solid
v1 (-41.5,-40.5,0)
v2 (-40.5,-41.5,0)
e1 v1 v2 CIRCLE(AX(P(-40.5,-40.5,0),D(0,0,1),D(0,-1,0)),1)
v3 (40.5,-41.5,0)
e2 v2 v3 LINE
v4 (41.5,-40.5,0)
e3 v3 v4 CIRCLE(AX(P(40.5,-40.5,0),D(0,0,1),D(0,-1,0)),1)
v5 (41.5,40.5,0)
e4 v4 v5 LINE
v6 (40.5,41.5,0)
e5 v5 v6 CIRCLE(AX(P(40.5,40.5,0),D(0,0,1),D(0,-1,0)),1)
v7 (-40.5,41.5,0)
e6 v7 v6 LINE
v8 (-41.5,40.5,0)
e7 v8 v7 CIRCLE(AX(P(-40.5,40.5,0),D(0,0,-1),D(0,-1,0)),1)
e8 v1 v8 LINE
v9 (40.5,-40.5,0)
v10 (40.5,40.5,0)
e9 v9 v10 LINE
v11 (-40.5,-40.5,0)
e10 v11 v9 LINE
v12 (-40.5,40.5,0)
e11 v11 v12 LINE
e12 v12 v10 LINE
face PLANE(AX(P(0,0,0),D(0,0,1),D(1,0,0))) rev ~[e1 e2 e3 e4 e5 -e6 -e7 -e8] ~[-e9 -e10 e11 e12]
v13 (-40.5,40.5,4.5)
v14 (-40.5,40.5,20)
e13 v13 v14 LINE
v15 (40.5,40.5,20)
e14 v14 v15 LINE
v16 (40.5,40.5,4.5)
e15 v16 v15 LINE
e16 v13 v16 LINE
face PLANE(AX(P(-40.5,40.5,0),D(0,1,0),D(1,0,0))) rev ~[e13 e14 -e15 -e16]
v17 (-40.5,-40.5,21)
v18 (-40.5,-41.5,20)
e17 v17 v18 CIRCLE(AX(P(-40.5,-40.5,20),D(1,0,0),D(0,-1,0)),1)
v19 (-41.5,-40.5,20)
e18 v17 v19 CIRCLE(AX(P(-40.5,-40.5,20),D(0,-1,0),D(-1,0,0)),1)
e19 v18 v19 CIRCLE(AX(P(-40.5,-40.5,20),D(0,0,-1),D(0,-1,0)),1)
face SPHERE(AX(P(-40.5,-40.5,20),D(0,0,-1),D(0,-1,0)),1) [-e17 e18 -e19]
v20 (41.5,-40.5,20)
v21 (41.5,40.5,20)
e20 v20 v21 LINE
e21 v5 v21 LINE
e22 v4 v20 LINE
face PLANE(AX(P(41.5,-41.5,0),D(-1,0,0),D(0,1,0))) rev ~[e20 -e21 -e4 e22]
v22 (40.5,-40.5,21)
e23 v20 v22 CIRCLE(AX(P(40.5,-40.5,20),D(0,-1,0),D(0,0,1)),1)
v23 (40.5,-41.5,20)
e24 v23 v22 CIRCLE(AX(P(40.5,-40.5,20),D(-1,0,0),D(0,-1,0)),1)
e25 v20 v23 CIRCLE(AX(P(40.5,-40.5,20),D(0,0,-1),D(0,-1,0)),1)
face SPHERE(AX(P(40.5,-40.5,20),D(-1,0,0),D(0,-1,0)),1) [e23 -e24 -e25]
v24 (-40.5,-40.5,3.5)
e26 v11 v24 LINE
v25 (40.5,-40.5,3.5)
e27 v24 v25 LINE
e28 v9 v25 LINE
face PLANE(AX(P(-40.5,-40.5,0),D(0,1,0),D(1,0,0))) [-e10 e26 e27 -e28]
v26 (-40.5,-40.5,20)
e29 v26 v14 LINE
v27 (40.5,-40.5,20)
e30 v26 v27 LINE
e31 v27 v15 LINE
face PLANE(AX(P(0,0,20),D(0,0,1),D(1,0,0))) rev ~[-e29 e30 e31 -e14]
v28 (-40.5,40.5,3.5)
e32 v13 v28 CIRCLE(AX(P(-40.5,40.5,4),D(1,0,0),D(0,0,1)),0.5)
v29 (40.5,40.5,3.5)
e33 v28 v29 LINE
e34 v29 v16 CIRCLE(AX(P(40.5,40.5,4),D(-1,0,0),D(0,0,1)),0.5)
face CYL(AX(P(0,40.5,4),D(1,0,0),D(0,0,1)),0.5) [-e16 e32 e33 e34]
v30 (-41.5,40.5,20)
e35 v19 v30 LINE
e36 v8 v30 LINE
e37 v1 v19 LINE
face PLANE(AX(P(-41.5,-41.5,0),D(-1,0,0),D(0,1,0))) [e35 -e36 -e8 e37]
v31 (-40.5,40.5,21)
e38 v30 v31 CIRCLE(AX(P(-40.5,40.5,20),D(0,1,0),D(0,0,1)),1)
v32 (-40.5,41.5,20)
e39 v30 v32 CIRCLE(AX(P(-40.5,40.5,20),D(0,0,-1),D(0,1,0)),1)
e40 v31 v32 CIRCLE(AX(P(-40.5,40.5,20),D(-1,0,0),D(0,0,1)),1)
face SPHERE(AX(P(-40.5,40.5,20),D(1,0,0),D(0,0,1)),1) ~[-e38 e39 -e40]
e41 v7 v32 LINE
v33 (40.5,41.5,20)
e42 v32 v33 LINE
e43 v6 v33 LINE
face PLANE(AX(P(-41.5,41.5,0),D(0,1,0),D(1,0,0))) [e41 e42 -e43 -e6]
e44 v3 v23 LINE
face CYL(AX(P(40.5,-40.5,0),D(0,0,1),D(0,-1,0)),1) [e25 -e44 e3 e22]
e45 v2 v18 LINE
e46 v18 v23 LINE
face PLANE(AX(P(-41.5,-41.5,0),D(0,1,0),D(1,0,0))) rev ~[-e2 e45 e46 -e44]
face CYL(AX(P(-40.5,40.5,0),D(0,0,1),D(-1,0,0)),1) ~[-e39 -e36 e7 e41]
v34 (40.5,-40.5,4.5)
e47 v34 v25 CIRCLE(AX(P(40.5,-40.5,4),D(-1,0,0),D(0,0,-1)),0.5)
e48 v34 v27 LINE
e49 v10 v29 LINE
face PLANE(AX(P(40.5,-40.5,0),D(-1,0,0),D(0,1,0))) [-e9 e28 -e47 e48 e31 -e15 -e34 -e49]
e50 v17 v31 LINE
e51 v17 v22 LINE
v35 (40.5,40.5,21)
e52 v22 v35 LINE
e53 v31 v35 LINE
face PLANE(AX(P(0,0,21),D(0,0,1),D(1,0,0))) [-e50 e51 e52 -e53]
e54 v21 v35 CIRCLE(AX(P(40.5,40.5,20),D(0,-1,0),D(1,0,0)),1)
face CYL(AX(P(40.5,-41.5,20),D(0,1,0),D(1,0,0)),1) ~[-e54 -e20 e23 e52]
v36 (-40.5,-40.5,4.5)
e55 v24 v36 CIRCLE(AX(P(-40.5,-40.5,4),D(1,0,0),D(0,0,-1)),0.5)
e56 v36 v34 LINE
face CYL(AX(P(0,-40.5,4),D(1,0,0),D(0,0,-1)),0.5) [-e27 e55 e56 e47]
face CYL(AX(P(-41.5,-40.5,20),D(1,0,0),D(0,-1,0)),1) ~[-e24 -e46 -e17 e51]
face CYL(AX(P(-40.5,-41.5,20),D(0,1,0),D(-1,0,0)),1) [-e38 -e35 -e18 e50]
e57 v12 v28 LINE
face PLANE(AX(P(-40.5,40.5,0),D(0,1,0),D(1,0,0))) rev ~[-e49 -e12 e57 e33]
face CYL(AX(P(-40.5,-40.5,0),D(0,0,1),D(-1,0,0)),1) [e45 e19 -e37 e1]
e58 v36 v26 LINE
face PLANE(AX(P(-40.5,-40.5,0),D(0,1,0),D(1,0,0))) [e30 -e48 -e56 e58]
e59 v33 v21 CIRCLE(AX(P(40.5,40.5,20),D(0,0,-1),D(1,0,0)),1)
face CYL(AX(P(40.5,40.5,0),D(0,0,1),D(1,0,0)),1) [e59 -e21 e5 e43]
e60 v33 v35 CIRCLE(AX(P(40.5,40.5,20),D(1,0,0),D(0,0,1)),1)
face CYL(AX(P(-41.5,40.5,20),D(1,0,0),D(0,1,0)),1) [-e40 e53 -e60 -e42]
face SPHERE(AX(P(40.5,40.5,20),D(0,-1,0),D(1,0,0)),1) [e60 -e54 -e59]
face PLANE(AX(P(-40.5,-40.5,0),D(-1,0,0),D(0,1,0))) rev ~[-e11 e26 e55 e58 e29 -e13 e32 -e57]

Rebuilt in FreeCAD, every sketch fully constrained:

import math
import FreeCAD as App
import Part
import Sketcher
from FreeCAD import Vector
Q = App.Units.Quantity


def edges_at(feature, points):
    """Names of the edges that pass closest to the given points."""
    edges = feature.Shape.Edges
    near = lambda p: min(range(len(edges)), key=lambda i: edges[i].distToShape(Part.Vertex(*p))[0])
    return sorted({f"Edge{near(p) + 1}" for p in points})

doc = App.newDocument("Part")
body = doc.addObject("PartDesign::Body", "Body")

sketch1 = body.newObject("Sketcher::SketchObject", "Sketch")
sketch1.AttachmentSupport = (doc.getObject("XY_Plane"), [""])
sketch1.MapMode = "FlatFace"
sketch1.addGeometry([
    Part.LineSegment(Vector(-40, 40, 0), Vector(-40, -40, 0)),
    Part.LineSegment(Vector(-40, -40, 0), Vector(40, -40, 0)),
    Part.LineSegment(Vector(40, -40, 0), Vector(40, 40, 0)),
    Part.LineSegment(Vector(40, 40, 0), Vector(-40, 40, 0)),
], False)
sketch1.addConstraint([
    Sketcher.Constraint("Coincident", 0, 2, 1, 1),
    Sketcher.Constraint("Coincident", 1, 2, 2, 1),
    Sketcher.Constraint("Coincident", 2, 2, 3, 1),
    Sketcher.Constraint("Coincident", 3, 2, 0, 1),
    Sketcher.Constraint("Vertical", 0),
    Sketcher.Constraint("Horizontal", 1),
    Sketcher.Constraint("Vertical", 2),
    Sketcher.Constraint("Horizontal", 3),
    Sketcher.Constraint("Symmetric", 0, 2, 2, 2, -1, 1),
    Sketcher.Constraint("Equal", 3, 0),
    Sketcher.Constraint("DistanceX", 1, 1, 1, 2, Q("81 mm")),
])
pad1 = body.newObject("PartDesign::Pad", "Pad")
pad1.Profile = sketch1
pad1.Length = 20

sketch2 = body.newObject("Sketcher::SketchObject", "Sketch001")
sketch2.AttachmentSupport = (doc.getObject("YZ_Plane"), [""])
sketch2.MapMode = "FlatFace"
sketch2.addGeometry([
    Part.ArcOfCircle(Part.Circle(Vector(40.5, 4, 0), Vector(0, 0, 1), 0.5), math.radians(90), math.radians(270)),
    Part.LineSegment(Vector(40.5, 3.5, 0), Vector(40.5, 4.5, 0)),
    Part.ArcOfCircle(Part.Circle(Vector(-40.5, 4, 0), Vector(0, 0, 1), 0.5), math.radians(-90), math.radians(90)),
    Part.LineSegment(Vector(-40.5, 4.5, 0), Vector(-40.5, 3.5, 0)),
], False)
sketch2.addConstraint([
    Sketcher.Constraint("Coincident", 0, 1, 1, 2),
    Sketcher.Constraint("Coincident", 1, 1, 0, 2),
    Sketcher.Constraint("Coincident", 2, 1, 3, 2),
    Sketcher.Constraint("Coincident", 3, 1, 2, 2),
    Sketcher.Constraint("Vertical", 1),
    Sketcher.Constraint("Vertical", 3),
    Sketcher.Constraint("Equal", 0, 2),
    Sketcher.Constraint("Symmetric", 0, 3, 2, 3, -2),
    Sketcher.Constraint("Radius", 0, Q("0.5 mm")),
    Sketcher.Constraint("DistanceY", -1, 1, 0, 3, Q("4 mm")),
    Sketcher.Constraint("DistanceX", 2, 3, 0, 3, Q("81 mm")),
    Sketcher.Constraint("DistanceX", 2, 3, 0, 1, Q("81 mm")),
    Sketcher.Constraint("DistanceX", 2, 1, 1, 1, Q("81 mm")),
])
pocket1 = body.newObject("PartDesign::Pocket", "Pocket")
pocket1.Profile = sketch2
pocket1.Type = "ThroughAll"
pocket1.Midplane = True
body2 = doc.addObject("PartDesign::Body", "Body001")

sketch3 = body2.newObject("Sketcher::SketchObject", "Sketch002")
sketch3.AttachmentSupport = (doc.getObject("XY_Plane001"), [""])
sketch3.MapMode = "FlatFace"
sketch3.addGeometry([
    Part.LineSegment(Vector(-42, 42, 0), Vector(-42, -42, 0)),
    Part.LineSegment(Vector(-42, -42, 0), Vector(42, -42, 0)),
    Part.LineSegment(Vector(42, -42, 0), Vector(42, 42, 0)),
    Part.LineSegment(Vector(42, 42, 0), Vector(-42, 42, 0)),
], False)
sketch3.addConstraint([
    Sketcher.Constraint("Coincident", 0, 2, 1, 1),
    Sketcher.Constraint("Coincident", 1, 2, 2, 1),
    Sketcher.Constraint("Coincident", 2, 2, 3, 1),
    Sketcher.Constraint("Coincident", 3, 2, 0, 1),
    Sketcher.Constraint("Vertical", 0),
    Sketcher.Constraint("Horizontal", 1),
    Sketcher.Constraint("Vertical", 2),
    Sketcher.Constraint("Horizontal", 3),
    Sketcher.Constraint("Symmetric", 0, 2, 2, 2, -1, 1),
    Sketcher.Constraint("Equal", 3, 0),
    Sketcher.Constraint("DistanceX", 1, 1, 1, 2, Q("83 mm")),
])
pad2 = body2.newObject("PartDesign::Pad", "Pad001")
pad2.Profile = sketch3
pad2.Length = 21
doc.recompute()

fillet = body2.newObject("PartDesign::Fillet", "Fillet")
fillet.Base = (pad2, edges_at(pad2, [
    (-41.5, -41.5, 10.5),
    (0, -41.5, 21),
    (41.5, -41.5, 10.5),
    (41.5, 0, 21),
    (41.5, 41.5, 10.5),
    (0, 41.5, 21),
    (-41.5, 0, 21),
    (-41.5, 41.5, 10.5),
]))
fillet.Radius = 1
doc.recompute()

boolean = body2.newObject("PartDesign::Boolean", "Boolean")
boolean.Type = "Cut"
boolean.addObjects([body])

doc.recompute()
